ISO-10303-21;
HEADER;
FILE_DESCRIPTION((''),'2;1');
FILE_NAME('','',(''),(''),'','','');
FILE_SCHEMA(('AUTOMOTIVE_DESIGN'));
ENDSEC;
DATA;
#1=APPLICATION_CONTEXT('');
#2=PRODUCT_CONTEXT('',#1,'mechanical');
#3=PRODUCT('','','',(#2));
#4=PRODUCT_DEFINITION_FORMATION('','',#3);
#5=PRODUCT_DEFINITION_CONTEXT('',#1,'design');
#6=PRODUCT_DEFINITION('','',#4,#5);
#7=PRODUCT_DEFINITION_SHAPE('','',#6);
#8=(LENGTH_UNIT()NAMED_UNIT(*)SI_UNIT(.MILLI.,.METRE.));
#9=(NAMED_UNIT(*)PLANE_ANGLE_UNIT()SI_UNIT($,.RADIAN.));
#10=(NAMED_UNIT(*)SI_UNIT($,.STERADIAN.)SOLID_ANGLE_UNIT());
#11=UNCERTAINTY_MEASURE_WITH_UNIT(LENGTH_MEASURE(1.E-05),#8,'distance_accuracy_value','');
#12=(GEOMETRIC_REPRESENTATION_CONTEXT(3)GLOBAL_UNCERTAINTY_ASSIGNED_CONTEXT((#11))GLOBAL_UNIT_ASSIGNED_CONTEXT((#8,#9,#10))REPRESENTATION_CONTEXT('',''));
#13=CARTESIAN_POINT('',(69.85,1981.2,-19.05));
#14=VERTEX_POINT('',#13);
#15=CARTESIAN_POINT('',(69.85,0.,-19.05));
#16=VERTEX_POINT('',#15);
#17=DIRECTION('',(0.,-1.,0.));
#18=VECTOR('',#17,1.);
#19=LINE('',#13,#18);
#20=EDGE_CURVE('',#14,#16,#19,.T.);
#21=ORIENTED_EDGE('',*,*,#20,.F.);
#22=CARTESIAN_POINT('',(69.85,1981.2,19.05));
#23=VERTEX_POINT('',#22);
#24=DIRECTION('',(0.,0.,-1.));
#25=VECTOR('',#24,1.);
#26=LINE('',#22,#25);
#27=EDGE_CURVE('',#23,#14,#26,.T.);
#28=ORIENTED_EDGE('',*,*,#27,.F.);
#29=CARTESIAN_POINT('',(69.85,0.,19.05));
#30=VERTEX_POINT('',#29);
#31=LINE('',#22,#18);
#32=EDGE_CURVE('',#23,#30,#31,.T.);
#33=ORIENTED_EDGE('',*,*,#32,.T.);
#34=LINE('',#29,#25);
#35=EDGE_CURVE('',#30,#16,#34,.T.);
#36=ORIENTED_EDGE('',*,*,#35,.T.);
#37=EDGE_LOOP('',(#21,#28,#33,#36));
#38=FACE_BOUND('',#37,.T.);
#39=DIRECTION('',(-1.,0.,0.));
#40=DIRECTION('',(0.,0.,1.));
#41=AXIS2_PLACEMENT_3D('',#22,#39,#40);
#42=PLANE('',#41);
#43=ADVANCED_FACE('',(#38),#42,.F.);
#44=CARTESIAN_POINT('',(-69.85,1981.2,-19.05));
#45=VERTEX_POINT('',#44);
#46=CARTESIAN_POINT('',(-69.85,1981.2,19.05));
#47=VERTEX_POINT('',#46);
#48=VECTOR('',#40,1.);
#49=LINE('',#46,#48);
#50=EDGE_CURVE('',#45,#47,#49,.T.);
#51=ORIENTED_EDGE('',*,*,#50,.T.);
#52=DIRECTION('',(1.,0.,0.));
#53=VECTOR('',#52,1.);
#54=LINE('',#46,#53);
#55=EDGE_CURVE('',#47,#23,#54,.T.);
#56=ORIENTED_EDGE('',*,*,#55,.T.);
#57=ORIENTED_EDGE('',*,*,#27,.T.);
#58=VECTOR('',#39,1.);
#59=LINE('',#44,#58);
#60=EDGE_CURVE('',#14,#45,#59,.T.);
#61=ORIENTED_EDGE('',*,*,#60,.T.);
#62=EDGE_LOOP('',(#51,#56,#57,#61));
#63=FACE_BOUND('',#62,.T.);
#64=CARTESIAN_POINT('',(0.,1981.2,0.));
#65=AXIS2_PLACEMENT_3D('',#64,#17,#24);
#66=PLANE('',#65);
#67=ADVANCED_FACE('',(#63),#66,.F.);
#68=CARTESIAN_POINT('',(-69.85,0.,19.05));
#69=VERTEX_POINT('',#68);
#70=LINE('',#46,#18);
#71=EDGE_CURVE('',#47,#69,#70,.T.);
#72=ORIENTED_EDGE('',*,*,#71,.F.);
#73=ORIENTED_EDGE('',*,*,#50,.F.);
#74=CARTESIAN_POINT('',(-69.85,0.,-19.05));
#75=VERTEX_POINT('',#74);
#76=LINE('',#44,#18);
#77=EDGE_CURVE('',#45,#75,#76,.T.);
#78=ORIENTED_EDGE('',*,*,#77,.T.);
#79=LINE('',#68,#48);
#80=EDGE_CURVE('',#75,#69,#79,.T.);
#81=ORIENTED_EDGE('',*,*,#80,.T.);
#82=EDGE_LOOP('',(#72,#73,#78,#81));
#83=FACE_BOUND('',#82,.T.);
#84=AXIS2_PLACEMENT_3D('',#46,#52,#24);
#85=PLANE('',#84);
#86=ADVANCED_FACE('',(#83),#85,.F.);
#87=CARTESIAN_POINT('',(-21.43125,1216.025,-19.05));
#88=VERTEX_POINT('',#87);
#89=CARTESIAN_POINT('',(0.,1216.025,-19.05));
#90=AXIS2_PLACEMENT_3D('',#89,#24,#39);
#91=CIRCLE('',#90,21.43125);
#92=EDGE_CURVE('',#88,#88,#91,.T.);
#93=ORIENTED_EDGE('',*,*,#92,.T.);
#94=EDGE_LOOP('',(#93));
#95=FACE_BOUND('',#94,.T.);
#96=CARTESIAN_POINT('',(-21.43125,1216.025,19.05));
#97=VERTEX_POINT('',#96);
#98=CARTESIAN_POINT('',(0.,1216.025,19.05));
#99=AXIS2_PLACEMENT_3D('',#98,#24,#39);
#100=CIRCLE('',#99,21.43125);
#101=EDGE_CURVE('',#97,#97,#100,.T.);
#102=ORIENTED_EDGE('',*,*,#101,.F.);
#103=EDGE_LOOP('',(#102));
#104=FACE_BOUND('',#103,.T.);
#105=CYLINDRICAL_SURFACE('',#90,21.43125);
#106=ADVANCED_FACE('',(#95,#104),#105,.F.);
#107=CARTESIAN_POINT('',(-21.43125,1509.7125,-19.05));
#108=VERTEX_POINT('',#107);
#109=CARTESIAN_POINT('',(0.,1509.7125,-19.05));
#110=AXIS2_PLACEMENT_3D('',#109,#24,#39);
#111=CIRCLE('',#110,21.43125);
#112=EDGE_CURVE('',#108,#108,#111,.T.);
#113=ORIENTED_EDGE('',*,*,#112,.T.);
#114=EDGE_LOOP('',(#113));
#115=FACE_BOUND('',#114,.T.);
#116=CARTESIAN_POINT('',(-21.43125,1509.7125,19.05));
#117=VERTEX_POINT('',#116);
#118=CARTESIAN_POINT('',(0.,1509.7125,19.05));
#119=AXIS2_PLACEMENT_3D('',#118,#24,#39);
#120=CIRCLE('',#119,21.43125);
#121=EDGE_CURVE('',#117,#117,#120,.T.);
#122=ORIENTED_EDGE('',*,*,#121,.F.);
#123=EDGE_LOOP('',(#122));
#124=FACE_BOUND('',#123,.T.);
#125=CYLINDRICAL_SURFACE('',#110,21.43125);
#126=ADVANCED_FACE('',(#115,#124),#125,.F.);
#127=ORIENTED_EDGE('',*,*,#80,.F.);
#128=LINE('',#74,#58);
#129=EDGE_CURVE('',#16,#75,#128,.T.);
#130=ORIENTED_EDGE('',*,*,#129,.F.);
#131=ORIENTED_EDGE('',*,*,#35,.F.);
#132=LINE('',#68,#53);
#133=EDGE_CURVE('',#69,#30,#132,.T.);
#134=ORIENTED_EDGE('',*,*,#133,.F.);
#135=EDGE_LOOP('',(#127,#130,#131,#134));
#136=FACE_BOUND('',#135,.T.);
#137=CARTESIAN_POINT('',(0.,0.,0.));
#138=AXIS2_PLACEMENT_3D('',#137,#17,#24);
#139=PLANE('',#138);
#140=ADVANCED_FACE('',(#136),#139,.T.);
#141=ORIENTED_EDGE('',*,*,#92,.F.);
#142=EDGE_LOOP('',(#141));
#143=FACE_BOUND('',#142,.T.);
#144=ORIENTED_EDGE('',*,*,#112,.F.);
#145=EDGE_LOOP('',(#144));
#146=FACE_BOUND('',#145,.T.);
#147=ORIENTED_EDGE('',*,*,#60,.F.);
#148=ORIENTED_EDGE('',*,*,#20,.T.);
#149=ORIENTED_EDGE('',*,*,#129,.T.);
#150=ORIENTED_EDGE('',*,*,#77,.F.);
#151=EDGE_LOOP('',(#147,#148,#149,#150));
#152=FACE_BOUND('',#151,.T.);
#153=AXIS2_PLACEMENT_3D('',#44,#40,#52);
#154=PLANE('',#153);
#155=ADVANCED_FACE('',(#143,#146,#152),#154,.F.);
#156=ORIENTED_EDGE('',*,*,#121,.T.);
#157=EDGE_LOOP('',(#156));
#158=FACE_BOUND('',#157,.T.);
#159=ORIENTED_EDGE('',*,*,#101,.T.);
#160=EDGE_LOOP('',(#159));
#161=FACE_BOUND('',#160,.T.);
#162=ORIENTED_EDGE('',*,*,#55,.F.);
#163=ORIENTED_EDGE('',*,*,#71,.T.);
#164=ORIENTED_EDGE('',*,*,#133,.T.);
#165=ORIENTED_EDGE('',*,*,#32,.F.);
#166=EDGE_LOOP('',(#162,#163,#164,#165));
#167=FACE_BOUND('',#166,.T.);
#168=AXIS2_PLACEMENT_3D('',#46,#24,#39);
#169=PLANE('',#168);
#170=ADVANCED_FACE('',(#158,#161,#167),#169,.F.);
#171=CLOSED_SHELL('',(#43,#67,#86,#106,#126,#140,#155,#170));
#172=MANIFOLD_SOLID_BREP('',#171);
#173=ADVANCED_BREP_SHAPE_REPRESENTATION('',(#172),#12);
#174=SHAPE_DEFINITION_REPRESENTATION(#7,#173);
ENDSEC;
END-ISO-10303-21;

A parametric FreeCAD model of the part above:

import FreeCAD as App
import Part
import Sketcher
Q = App.Units.Quantity

doc = App.newDocument("Part")
body = doc.addObject("PartDesign::Body", "Body")

sketch1 = body.newObject("Sketcher::SketchObject", "Sketch")
sketch1.AttachmentSupport = (doc.getObject("XZ_Plane"), [""])
sketch1.MapMode = "FlatFace"
sketch1.addGeometry([
    Part.LineSegment(App.Vector(-69.85, -19.05, 0), App.Vector(-69.85, 19.05, 0)),
    Part.LineSegment(App.Vector(-69.85, 19.05, 0), App.Vector(69.85, 19.05, 0)),
    Part.LineSegment(App.Vector(69.85, 19.05, 0), App.Vector(69.85, -19.05, 0)),
    Part.LineSegment(App.Vector(69.85, -19.05, 0), App.Vector(-69.85, -19.05, 0)),
], False)
sketch1.addConstraint([
    Sketcher.Constraint("Coincident", 0, 2, 1, 1),
    Sketcher.Constraint("Coincident", 1, 2, 2, 1),
    Sketcher.Constraint("Coincident", 2, 2, 3, 1),
    Sketcher.Constraint("Coincident", 3, 2, 0, 1),
    Sketcher.Constraint("Vertical", 0),
    Sketcher.Constraint("Horizontal", 1),
    Sketcher.Constraint("Vertical", 2),
    Sketcher.Constraint("Horizontal", 3),
    Sketcher.Constraint("Symmetric", 0, 2, 2, 2, -1, 1),
    Sketcher.Constraint("DistanceX", 1, 1, 1, 2, Q("5.5 in")),
    Sketcher.Constraint("DistanceY", 0, 1, 0, 2, Q("1.5 in")),
])
pad1 = body.newObject("PartDesign::Pad", "Pad")
pad1.Profile = sketch1
pad1.Length = Q("78 in")
pad1.Reversed = True

sketch2 = body.newObject("Sketcher::SketchObject", "Sketch001")
sketch2.AttachmentSupport = (doc.getObject("XY_Plane"), [""])
sketch2.MapMode = "FlatFace"
sketch2.AttachmentOffset = App.Placement(App.Vector(0, 0, -0.75 * 25.4), App.Rotation())
sketch2.addGeometry([
    Part.Circle(App.Vector(0, 1216.025, 0), App.Vector(0, 0, 1), 21.43125),
    Part.Circle(App.Vector(0, 1509.7125, 0), App.Vector(0, 0, 1), 21.43125),
], False)
sketch2.addConstraint([
    Sketcher.Constraint("Equal", 0, 1),
    Sketcher.Constraint("PointOnObject", 0, 3, -2),
    Sketcher.Constraint("PointOnObject", 1, 3, -2),
    Sketcher.Constraint("Diameter", 0, Q("1.6875 in")),
    Sketcher.Constraint("DistanceY", -1, 1, 0, 3, Q("47.875 in")),
    Sketcher.Constraint("DistanceY", -1, 1, 1, 3, Q("59.4375 in")),
])
doc.recompute()
hole = body.newObject("PartDesign::Hole", "Hole")
hole.Profile = sketch2
hole.ThreadType = "None"
hole.Diameter = Q("1.6875 in")
hole.DepthType = "ThroughAll"
hole.Reversed = True

doc.recompute()
